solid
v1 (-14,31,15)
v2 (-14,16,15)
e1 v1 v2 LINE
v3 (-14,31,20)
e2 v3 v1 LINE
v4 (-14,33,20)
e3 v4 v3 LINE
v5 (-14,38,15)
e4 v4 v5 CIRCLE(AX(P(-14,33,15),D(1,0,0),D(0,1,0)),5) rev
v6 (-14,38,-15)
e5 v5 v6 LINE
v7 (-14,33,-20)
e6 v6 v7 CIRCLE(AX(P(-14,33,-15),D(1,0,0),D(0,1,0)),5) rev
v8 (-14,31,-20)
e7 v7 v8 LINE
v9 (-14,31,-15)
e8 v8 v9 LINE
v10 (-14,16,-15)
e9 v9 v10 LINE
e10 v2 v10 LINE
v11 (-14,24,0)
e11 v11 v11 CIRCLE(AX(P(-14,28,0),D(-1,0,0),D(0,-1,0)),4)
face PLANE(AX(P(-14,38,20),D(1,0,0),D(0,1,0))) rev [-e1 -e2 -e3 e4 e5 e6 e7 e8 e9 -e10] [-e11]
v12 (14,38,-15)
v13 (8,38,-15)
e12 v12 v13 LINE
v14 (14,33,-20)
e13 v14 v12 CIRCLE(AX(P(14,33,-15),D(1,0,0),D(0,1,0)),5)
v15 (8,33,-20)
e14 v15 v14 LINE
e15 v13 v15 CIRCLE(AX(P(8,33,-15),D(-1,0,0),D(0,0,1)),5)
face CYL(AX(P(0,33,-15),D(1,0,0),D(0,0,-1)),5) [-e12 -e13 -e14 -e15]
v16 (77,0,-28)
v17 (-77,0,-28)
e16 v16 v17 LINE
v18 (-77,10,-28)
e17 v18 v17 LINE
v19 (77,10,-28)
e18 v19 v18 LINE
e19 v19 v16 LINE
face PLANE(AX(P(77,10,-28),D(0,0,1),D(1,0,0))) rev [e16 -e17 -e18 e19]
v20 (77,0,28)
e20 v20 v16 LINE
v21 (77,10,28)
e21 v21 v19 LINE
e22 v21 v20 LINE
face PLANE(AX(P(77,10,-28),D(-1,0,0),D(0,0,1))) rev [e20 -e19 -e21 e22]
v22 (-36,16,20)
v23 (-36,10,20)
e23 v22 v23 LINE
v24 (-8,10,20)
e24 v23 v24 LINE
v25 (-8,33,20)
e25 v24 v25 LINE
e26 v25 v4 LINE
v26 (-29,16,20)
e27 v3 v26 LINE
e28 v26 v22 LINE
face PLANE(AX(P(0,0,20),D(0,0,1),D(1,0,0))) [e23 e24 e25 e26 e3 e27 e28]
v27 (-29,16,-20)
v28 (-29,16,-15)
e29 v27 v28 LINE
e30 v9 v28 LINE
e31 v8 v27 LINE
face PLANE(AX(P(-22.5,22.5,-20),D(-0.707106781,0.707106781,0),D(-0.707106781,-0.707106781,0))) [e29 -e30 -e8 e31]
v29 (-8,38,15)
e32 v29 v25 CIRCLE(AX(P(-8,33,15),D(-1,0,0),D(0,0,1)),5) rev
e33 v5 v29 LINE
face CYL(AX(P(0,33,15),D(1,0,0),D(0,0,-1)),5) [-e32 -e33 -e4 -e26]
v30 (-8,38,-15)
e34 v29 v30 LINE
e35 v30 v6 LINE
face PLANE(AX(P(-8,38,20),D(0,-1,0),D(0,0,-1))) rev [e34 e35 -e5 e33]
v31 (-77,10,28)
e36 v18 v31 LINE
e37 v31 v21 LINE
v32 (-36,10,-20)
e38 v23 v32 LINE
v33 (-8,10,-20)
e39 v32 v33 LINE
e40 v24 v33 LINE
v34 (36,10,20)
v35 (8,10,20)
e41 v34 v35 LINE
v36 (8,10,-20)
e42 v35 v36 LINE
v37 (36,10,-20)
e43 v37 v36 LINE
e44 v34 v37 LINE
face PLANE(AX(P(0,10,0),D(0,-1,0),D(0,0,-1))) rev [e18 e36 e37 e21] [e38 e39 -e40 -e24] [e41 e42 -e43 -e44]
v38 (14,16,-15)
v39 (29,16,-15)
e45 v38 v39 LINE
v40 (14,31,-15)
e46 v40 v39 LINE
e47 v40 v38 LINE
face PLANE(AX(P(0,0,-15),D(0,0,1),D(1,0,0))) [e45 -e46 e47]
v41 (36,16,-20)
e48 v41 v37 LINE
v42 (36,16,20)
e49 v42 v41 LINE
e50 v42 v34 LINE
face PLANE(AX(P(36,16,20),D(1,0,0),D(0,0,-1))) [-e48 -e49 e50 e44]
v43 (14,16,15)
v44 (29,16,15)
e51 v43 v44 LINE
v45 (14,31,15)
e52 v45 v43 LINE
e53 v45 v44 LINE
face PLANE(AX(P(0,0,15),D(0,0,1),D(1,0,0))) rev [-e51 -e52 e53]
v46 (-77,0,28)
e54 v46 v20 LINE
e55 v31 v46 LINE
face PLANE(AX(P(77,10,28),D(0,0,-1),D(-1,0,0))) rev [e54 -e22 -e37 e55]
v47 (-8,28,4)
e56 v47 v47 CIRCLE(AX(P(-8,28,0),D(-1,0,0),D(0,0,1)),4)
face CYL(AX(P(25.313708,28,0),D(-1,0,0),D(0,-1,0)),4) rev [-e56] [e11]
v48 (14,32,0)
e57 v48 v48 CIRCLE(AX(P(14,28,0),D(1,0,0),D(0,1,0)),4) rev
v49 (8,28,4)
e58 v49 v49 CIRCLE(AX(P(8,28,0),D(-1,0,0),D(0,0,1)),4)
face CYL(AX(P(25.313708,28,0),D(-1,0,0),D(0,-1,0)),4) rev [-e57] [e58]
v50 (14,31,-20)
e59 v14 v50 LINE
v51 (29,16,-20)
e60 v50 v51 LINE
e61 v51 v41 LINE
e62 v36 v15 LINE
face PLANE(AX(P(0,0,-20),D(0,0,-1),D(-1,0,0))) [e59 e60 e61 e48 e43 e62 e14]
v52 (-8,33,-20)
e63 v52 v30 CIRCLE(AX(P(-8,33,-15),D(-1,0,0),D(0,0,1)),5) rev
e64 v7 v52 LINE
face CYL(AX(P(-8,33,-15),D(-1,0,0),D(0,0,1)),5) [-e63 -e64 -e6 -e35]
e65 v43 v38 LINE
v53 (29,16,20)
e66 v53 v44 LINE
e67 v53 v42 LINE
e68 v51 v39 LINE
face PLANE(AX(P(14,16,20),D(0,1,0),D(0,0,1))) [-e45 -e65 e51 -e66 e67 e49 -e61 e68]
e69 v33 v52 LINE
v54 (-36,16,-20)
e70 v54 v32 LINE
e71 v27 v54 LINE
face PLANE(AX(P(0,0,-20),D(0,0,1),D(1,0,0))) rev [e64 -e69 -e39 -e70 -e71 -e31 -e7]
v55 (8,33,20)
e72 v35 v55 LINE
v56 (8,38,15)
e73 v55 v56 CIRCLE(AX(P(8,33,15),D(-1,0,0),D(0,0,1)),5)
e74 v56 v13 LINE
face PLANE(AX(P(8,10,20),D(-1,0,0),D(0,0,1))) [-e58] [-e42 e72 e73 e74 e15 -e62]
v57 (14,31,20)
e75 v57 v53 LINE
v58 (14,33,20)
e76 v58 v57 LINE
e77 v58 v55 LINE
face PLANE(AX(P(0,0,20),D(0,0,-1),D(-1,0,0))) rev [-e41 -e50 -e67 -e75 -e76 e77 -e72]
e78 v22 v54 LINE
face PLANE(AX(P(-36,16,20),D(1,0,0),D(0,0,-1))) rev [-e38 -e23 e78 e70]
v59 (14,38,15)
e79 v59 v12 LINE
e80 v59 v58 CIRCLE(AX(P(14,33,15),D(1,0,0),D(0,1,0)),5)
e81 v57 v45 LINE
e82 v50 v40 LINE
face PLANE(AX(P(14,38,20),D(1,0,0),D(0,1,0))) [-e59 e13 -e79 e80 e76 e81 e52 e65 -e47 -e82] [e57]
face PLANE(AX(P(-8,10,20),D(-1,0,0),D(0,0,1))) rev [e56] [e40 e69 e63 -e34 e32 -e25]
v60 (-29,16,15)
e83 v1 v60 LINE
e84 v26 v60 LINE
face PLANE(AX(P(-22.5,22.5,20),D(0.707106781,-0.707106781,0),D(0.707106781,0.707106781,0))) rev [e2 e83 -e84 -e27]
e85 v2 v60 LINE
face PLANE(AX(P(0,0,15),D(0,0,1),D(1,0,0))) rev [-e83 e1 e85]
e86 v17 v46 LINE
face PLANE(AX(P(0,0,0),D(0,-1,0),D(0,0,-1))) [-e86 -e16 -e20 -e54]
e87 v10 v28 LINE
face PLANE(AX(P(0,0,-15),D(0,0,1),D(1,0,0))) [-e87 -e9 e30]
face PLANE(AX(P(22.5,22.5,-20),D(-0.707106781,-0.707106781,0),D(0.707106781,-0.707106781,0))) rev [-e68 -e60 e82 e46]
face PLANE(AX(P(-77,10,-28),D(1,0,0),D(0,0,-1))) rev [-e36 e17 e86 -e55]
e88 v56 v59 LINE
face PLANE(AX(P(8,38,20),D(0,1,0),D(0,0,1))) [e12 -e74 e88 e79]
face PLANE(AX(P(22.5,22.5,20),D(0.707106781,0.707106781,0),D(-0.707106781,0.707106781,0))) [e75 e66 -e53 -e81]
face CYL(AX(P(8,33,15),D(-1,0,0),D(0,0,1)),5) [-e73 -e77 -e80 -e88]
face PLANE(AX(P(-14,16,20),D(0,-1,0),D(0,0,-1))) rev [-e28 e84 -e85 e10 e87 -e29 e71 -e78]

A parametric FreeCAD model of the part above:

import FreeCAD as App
import Part
import Sketcher
from FreeCAD import Vector
Q = App.Units.Quantity


def edges_at(feature, points):
    """Names of the edges that pass closest to the given points."""
    edges = feature.Shape.Edges
    near = lambda p: min(range(len(edges)), key=lambda i: edges[i].distToShape(Part.Vertex(*p))[0])
    return sorted({f"Edge{near(p) + 1}" for p in points})

doc = App.newDocument("Part")
body = doc.addObject("PartDesign::Body", "Body")

sketch1 = doc.addObject("Sketcher::SketchObject", "Sketch")
body.addObject(sketch1)
sketch1.AttachmentSupport = (doc.XZ_Plane, [""])
sketch1.MapMode = "FlatFace"
sketch1.addGeometry([
    Part.LineSegment(Vector(-77, -28, 0), Vector(-77, 28, 0)),
    Part.LineSegment(Vector(-77, 28, 0), Vector(77, 28, 0)),
    Part.LineSegment(Vector(77, 28, 0), Vector(77, -28, 0)),
    Part.LineSegment(Vector(77, -28, 0), Vector(-77, -28, 0)),
], False)
sketch1.addConstraint([
    Sketcher.Constraint("Coincident", 0, 2, 1, 1),
    Sketcher.Constraint("Coincident", 1, 2, 2, 1),
    Sketcher.Constraint("Coincident", 2, 2, 3, 1),
    Sketcher.Constraint("Coincident", 3, 2, 0, 1),
    Sketcher.Constraint("Vertical", 0),
    Sketcher.Constraint("Horizontal", 1),
    Sketcher.Constraint("Vertical", 2),
    Sketcher.Constraint("Horizontal", 3),
    Sketcher.Constraint("Symmetric", 0, 2, 2, 2, -1, 1),
    Sketcher.Constraint("DistanceX", 1, 1, 1, 2, Q("154 mm")),
    Sketcher.Constraint("DistanceY", 0, 1, 0, 2, Q("56 mm")),
])
pad1 = doc.addObject("PartDesign::Pad", "Pad")
body.addObject(pad1)
pad1.Profile = sketch1
pad1.Length = 10
pad1.Reversed = True

sketch2 = doc.addObject("Sketcher::SketchObject", "Sketch001")
body.addObject(sketch2)
sketch2.AttachmentSupport = (doc.XY_Plane, [""])
sketch2.MapMode = "FlatFace"
sketch2.addGeometry([
    Part.LineSegment(Vector(-8, 10, 0), Vector(-8, 38, 0)),
    Part.LineSegment(Vector(-8, 38, 0), Vector(-14, 38, 0)),
    Part.LineSegment(Vector(-14, 38, 0), Vector(-14, 16, 0)),
    Part.LineSegment(Vector(-14, 16, 0), Vector(-36, 16, 0)),
    Part.LineSegment(Vector(-36, 16, 0), Vector(-36, 10, 0)),
    Part.LineSegment(Vector(-36, 10, 0), Vector(-8, 10, 0)),
    Part.LineSegment(Vector(36, 10, 0), Vector(36, 16, 0)),
    Part.LineSegment(Vector(36, 16, 0), Vector(14, 16, 0)),
    Part.LineSegment(Vector(14, 16, 0), Vector(14, 38, 0)),
    Part.LineSegment(Vector(14, 38, 0), Vector(8, 38, 0)),
    Part.LineSegment(Vector(8, 38, 0), Vector(8, 10, 0)),
    Part.LineSegment(Vector(8, 10, 0), Vector(36, 10, 0)),
], False)
sketch2.addConstraint([
    Sketcher.Constraint("Coincident", 0, 2, 1, 1),
    Sketcher.Constraint("Coincident", 1, 2, 2, 1),
    Sketcher.Constraint("Coincident", 2, 2, 3, 1),
    Sketcher.Constraint("Coincident", 3, 2, 4, 1),
    Sketcher.Constraint("Coincident", 4, 2, 5, 1),
    Sketcher.Constraint("Coincident", 5, 2, 0, 1),
    Sketcher.Constraint("Coincident", 6, 2, 7, 1),
    Sketcher.Constraint("Coincident", 7, 2, 8, 1),
    Sketcher.Constraint("Coincident", 8, 2, 9, 1),
    Sketcher.Constraint("Coincident", 9, 2, 10, 1),
    Sketcher.Constraint("Coincident", 10, 2, 11, 1),
    Sketcher.Constraint("Coincident", 11, 2, 6, 1),
    Sketcher.Constraint("Vertical", 0),
    Sketcher.Constraint("Horizontal", 1),
    Sketcher.Constraint("Vertical", 2),
    Sketcher.Constraint("Horizontal", 3),
    Sketcher.Constraint("Vertical", 4),
    Sketcher.Constraint("Horizontal", 5),
    Sketcher.Constraint("Vertical", 6),
    Sketcher.Constraint("Horizontal", 7),
    Sketcher.Constraint("Vertical", 8),
    Sketcher.Constraint("Horizontal", 9),
    Sketcher.Constraint("Vertical", 10),
    Sketcher.Constraint("Horizontal", 11),
    Sketcher.Constraint("Symmetric", 3, 2, 6, 2, -2),
    Sketcher.Constraint("Symmetric", 1, 2, 8, 2, -2),
    Sketcher.Constraint("Symmetric", 5, 2, 10, 2, -2),
    Sketcher.Constraint("Equal", 11, 0),
    Sketcher.Constraint("Equal", 7, 2),
    Sketcher.Constraint("DistanceX", 1, 2, 1, 1, Q("6 mm")),
    Sketcher.Constraint("DistanceX", 3, 2, 3, 1, Q("22 mm")),
    Sketcher.Constraint("DistanceX", 0, 2, -1, 1, Q("8 mm")),
    Sketcher.Constraint("DistanceY", -1, 1, 0, 2, Q("38 mm")),
])
pad2 = doc.addObject("PartDesign::Pad", "Pad001")
body.addObject(pad2)
pad2.Profile = sketch2
pad2.Length = 40
pad2.Midplane = True

sketch3 = doc.addObject("Sketcher::SketchObject", "Sketch002")
body.addObject(sketch3)
sketch3.AttachmentSupport = (doc.XY_Plane, [""])
sketch3.MapMode = "FlatFace"
sketch3.AttachmentOffset = App.Placement(Vector(0, 0, -15), App.Rotation())
sketch3.addGeometry([
    Part.LineSegment(Vector(-14, 16, 0), Vector(-14, 31, 0)),
    Part.LineSegment(Vector(-14, 31, 0), Vector(-29, 16, 0)),
    Part.LineSegment(Vector(-29, 16, 0), Vector(-14, 16, 0)),
    Part.LineSegment(Vector(29, 16, 0), Vector(14, 31, 0)),
    Part.LineSegment(Vector(14, 31, 0), Vector(14, 16, 0)),
    Part.LineSegment(Vector(14, 16, 0), Vector(29, 16, 0)),
], False)
sketch3.addConstraint([
    Sketcher.Constraint("Coincident", 0, 2, 1, 1),
    Sketcher.Constraint("Coincident", 1, 2, 2, 1),
    Sketcher.Constraint("Coincident", 2, 2, 0, 1),
    Sketcher.Constraint("Coincident", 3, 2, 4, 1),
    Sketcher.Constraint("Coincident", 4, 2, 5, 1),
    Sketcher.Constraint("Coincident", 5, 2, 3, 1),
    Sketcher.Constraint("Vertical", 0),
    Sketcher.Constraint("Horizontal", 2),
    Sketcher.Constraint("Vertical", 4),
    Sketcher.Constraint("Horizontal", 5),
    Sketcher.Constraint("Symmetric", 0, 2, 3, 2, -2),
    Sketcher.Constraint("Symmetric", 1, 2, 5, 2, -2),
    Sketcher.Constraint("Perpendicular", 1, 3),
    Sketcher.Constraint("DistanceX", 2, 1, 2, 2, Q("15 mm")),
    Sketcher.Constraint("DistanceX", 0, 2, -1, 1, Q("14 mm")),
    Sketcher.Constraint("DistanceY", -1, 1, 0, 2, Q("31 mm")),
])
pad3 = doc.addObject("PartDesign::Pad", "Pad002")
body.addObject(pad3)
pad3.Profile = sketch3
pad3.Length = 5
pad3.Reversed = True

sketch4 = doc.addObject("Sketcher::SketchObject", "Sketch003")
body.addObject(sketch4)
sketch4.AttachmentSupport = (doc.XY_Plane, [""])
sketch4.MapMode = "FlatFace"
sketch4.AttachmentOffset = App.Placement(Vector(0, 0, 15), App.Rotation())
sketch4.addGeometry([
    Part.LineSegment(Vector(-14, 16, 0), Vector(-14, 31, 0)),
    Part.LineSegment(Vector(-14, 31, 0), Vector(-29, 16, 0)),
    Part.LineSegment(Vector(-29, 16, 0), Vector(-14, 16, 0)),
    Part.LineSegment(Vector(29, 16, 0), Vector(14, 31, 0)),
    Part.LineSegment(Vector(14, 31, 0), Vector(14, 16, 0)),
    Part.LineSegment(Vector(14, 16, 0), Vector(29, 16, 0)),
], False)
sketch4.addConstraint([
    Sketcher.Constraint("Coincident", 0, 2, 1, 1),
    Sketcher.Constraint("Coincident", 1, 2, 2, 1),
    Sketcher.Constraint("Coincident", 2, 2, 0, 1),
    Sketcher.Constraint("Coincident", 3, 2, 4, 1),
    Sketcher.Constraint("Coincident", 4, 2, 5, 1),
    Sketcher.Constraint("Coincident", 5, 2, 3, 1),
    Sketcher.Constraint("Vertical", 0),
    Sketcher.Constraint("Horizontal", 2),
    Sketcher.Constraint("Vertical", 4),
    Sketcher.Constraint("Horizontal", 5),
    Sketcher.Constraint("Symmetric", 0, 2, 3, 2, -2),
    Sketcher.Constraint("Symmetric", 1, 2, 5, 2, -2),
    Sketcher.Constraint("Perpendicular", 1, 3),
    Sketcher.Constraint("DistanceX", 2, 1, 2, 2, Q("15 mm")),
    Sketcher.Constraint("DistanceX", 0, 2, -1, 1, Q("14 mm")),
    Sketcher.Constraint("DistanceY", -1, 1, 0, 2, Q("31 mm")),
])
pad4 = doc.addObject("PartDesign::Pad", "Pad003")
body.addObject(pad4)
pad4.Profile = sketch4
pad4.Length = 5

sketch5 = doc.addObject("Sketcher::SketchObject", "Sketch004")
body.addObject(sketch5)
sketch5.AttachmentSupport = (doc.YZ_Plane, [""])
sketch5.MapMode = "FlatFace"
sketch5.AttachmentOffset = App.Placement(Vector(0, 0, -14), App.Rotation())
sketch5.addGeometry(Part.Circle(Vector(28, 0, 0), Vector(0, 0, 1), 4), False)
sketch5.addConstraint([
    Sketcher.Constraint("PointOnObject", 0, 3, -1),
    Sketcher.Constraint("Diameter", 0, Q("8 mm")),
    Sketcher.Constraint("DistanceX", -1, 1, 0, 3, Q("28 mm")),
])
pocket1 = doc.addObject("PartDesign::Pocket", "Pocket")
body.addObject(pocket1)
pocket1.Profile = sketch5
pocket1.Length = 28
pocket1.Reversed = True
doc.recompute()

fillet = doc.addObject("PartDesign::Fillet", "Fillet")
body.addObject(fillet)
fillet.Base = (pocket1, edges_at(pocket1, [
    (-11, 38, -20),
    (-11, 38, 20),
    (11, 38, 20),
    (11, 38, -20),
]))
fillet.Radius = 5

doc.recompute()
